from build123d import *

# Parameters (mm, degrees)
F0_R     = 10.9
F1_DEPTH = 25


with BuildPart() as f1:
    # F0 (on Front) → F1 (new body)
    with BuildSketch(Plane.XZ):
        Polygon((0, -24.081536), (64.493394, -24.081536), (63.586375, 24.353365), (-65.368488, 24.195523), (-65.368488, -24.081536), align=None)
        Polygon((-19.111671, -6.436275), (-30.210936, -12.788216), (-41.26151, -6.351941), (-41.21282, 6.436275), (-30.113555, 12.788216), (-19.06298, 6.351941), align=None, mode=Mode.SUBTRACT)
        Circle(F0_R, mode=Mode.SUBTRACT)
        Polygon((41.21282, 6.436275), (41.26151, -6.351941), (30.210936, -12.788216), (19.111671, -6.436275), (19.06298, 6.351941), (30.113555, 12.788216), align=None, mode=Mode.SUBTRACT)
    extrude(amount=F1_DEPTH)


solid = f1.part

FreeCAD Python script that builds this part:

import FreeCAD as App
import Part
import Sketcher
from FreeCAD import Vector


def add_polygon(sketch, points):
    """Adds a closed chain of lines whose ends are joined by coincident constraints."""
    first, n = sketch.GeometryCount, len(points)
    for a, b in zip(points, points[1:] + points[:1]):
        sketch.addGeometry(Part.LineSegment(App.Vector(*a, 0), App.Vector(*b, 0)), False)
    for i in range(n):
        sketch.addConstraint(Sketcher.Constraint("Coincident", first + i, 2, first + (i + 1) % n, 1))

doc = App.newDocument("Part")
body = doc.addObject("PartDesign::Body", "Body")

# Sketch on XZ plane
sketch1 = body.newObject("Sketcher::SketchObject", "Sketch")
sketch1.AttachmentSupport = (doc.getObject("XZ_Plane"), [""])
sketch1.MapMode = "FlatFace"
add_polygon(sketch1, [(64.493394, -24.081536), (63.586375, 24.353365), (-65.368488, 24.195523), (-65.368488, -24.081536)])  # lines 0-3
add_polygon(sketch1, [(-19.06298, 6.351941), (-19.111671, -6.436275), (-30.210936, -12.788216), (-41.26151, -6.351941), (-41.21282, 6.436275), (-30.113555, 12.788216)])  # lines 4-9
sketch1.addGeometry(Part.Circle(Vector(0, 0, 0), Vector(0, 0, 1), 10.9), False)  # 10
add_polygon(sketch1, [(30.113555, 12.788216), (41.21282, 6.436275), (41.26151, -6.351941), (30.210936, -12.788216), (19.111671, -6.436275), (19.06298, 6.351941)])  # lines 11-16
sketch1.addConstraint(Sketcher.Constraint("Vertical", 2))
sketch1.addConstraint(Sketcher.Constraint("Horizontal", 3))
sketch1.addConstraint(Sketcher.Constraint("Coincident", 10, 3, -1, 1))
sketch1.addConstraint(Sketcher.Constraint("Symmetric", 7, 2, 11, 2, -2))
sketch1.addConstraint(Sketcher.Constraint("Symmetric", 6, 2, 12, 2, -2))
sketch1.addConstraint(Sketcher.Constraint("Symmetric", 5, 2, 13, 2, -2))
sketch1.addConstraint(Sketcher.Constraint("Symmetric", 4, 2, 14, 2, -2))
sketch1.addConstraint(Sketcher.Constraint("Symmetric", 9, 2, 15, 2, -2))
sketch1.addConstraint(Sketcher.Constraint("Symmetric", 8, 2, 16, 2, -2))
sketch1.addConstraint(Sketcher.Constraint("Parallel", 4, 7))
sketch1.addConstraint(Sketcher.Constraint("Parallel", 5, 8))
sketch1.addConstraint(Sketcher.Constraint("Parallel", 6, 9))
sketch1.addConstraint(Sketcher.Constraint("Equal", 4, 5))
sketch1.addConstraint(Sketcher.Constraint("Equal", 5, 6))
sketch1.addConstraint(Sketcher.Constraint("Equal", 6, 7))
sketch1.addConstraint(Sketcher.Constraint("Diameter", 10, 21.8))
sketch1.addConstraint(Sketcher.Constraint("DistanceX", 3, 1, 3, 2, 129.861882))
sketch1.addConstraint(Sketcher.Constraint("DistanceY", 2, 2, 2, 1, 48.277059))
sketch1.addConstraint(Sketcher.Constraint("DistanceY", 2, 2, 0, 2, 48.434901))
sketch1.addConstraint(Sketcher.Constraint("DistanceY", 4, 2, 1, 2, 30.631798))
sketch1.addConstraint(Sketcher.Constraint("DistanceX", 9, 2, 11, 2, 60.2758))
sketch1.addConstraint(Sketcher.Constraint("Distance", 1, 128.95496))
sketch1.addConstraint(Sketcher.Constraint("Distance", 4, 12.788309))
sketch1.addConstraint(Sketcher.Constraint("DistanceX", 1, 2, -1, 1, 65.368488))
sketch1.addConstraint(Sketcher.Constraint("DistanceX", 4, 2, -1, 1, 19.111671))
sketch1.addConstraint(Sketcher.Constraint("DistanceX", 6, 2, -1, 1, 41.26151))
sketch1.addConstraint(Sketcher.Constraint("DistanceY", 6, 2, -1, 1, 6.351941))
sketch1.addConstraint(Sketcher.Constraint("DistanceY", -1, 1, 9, 2, 6.351941))
pad1 = body.newObject("PartDesign::Pad", "Pad")
pad1.Profile = sketch1
pad1.Length = 25

doc.recompute()
